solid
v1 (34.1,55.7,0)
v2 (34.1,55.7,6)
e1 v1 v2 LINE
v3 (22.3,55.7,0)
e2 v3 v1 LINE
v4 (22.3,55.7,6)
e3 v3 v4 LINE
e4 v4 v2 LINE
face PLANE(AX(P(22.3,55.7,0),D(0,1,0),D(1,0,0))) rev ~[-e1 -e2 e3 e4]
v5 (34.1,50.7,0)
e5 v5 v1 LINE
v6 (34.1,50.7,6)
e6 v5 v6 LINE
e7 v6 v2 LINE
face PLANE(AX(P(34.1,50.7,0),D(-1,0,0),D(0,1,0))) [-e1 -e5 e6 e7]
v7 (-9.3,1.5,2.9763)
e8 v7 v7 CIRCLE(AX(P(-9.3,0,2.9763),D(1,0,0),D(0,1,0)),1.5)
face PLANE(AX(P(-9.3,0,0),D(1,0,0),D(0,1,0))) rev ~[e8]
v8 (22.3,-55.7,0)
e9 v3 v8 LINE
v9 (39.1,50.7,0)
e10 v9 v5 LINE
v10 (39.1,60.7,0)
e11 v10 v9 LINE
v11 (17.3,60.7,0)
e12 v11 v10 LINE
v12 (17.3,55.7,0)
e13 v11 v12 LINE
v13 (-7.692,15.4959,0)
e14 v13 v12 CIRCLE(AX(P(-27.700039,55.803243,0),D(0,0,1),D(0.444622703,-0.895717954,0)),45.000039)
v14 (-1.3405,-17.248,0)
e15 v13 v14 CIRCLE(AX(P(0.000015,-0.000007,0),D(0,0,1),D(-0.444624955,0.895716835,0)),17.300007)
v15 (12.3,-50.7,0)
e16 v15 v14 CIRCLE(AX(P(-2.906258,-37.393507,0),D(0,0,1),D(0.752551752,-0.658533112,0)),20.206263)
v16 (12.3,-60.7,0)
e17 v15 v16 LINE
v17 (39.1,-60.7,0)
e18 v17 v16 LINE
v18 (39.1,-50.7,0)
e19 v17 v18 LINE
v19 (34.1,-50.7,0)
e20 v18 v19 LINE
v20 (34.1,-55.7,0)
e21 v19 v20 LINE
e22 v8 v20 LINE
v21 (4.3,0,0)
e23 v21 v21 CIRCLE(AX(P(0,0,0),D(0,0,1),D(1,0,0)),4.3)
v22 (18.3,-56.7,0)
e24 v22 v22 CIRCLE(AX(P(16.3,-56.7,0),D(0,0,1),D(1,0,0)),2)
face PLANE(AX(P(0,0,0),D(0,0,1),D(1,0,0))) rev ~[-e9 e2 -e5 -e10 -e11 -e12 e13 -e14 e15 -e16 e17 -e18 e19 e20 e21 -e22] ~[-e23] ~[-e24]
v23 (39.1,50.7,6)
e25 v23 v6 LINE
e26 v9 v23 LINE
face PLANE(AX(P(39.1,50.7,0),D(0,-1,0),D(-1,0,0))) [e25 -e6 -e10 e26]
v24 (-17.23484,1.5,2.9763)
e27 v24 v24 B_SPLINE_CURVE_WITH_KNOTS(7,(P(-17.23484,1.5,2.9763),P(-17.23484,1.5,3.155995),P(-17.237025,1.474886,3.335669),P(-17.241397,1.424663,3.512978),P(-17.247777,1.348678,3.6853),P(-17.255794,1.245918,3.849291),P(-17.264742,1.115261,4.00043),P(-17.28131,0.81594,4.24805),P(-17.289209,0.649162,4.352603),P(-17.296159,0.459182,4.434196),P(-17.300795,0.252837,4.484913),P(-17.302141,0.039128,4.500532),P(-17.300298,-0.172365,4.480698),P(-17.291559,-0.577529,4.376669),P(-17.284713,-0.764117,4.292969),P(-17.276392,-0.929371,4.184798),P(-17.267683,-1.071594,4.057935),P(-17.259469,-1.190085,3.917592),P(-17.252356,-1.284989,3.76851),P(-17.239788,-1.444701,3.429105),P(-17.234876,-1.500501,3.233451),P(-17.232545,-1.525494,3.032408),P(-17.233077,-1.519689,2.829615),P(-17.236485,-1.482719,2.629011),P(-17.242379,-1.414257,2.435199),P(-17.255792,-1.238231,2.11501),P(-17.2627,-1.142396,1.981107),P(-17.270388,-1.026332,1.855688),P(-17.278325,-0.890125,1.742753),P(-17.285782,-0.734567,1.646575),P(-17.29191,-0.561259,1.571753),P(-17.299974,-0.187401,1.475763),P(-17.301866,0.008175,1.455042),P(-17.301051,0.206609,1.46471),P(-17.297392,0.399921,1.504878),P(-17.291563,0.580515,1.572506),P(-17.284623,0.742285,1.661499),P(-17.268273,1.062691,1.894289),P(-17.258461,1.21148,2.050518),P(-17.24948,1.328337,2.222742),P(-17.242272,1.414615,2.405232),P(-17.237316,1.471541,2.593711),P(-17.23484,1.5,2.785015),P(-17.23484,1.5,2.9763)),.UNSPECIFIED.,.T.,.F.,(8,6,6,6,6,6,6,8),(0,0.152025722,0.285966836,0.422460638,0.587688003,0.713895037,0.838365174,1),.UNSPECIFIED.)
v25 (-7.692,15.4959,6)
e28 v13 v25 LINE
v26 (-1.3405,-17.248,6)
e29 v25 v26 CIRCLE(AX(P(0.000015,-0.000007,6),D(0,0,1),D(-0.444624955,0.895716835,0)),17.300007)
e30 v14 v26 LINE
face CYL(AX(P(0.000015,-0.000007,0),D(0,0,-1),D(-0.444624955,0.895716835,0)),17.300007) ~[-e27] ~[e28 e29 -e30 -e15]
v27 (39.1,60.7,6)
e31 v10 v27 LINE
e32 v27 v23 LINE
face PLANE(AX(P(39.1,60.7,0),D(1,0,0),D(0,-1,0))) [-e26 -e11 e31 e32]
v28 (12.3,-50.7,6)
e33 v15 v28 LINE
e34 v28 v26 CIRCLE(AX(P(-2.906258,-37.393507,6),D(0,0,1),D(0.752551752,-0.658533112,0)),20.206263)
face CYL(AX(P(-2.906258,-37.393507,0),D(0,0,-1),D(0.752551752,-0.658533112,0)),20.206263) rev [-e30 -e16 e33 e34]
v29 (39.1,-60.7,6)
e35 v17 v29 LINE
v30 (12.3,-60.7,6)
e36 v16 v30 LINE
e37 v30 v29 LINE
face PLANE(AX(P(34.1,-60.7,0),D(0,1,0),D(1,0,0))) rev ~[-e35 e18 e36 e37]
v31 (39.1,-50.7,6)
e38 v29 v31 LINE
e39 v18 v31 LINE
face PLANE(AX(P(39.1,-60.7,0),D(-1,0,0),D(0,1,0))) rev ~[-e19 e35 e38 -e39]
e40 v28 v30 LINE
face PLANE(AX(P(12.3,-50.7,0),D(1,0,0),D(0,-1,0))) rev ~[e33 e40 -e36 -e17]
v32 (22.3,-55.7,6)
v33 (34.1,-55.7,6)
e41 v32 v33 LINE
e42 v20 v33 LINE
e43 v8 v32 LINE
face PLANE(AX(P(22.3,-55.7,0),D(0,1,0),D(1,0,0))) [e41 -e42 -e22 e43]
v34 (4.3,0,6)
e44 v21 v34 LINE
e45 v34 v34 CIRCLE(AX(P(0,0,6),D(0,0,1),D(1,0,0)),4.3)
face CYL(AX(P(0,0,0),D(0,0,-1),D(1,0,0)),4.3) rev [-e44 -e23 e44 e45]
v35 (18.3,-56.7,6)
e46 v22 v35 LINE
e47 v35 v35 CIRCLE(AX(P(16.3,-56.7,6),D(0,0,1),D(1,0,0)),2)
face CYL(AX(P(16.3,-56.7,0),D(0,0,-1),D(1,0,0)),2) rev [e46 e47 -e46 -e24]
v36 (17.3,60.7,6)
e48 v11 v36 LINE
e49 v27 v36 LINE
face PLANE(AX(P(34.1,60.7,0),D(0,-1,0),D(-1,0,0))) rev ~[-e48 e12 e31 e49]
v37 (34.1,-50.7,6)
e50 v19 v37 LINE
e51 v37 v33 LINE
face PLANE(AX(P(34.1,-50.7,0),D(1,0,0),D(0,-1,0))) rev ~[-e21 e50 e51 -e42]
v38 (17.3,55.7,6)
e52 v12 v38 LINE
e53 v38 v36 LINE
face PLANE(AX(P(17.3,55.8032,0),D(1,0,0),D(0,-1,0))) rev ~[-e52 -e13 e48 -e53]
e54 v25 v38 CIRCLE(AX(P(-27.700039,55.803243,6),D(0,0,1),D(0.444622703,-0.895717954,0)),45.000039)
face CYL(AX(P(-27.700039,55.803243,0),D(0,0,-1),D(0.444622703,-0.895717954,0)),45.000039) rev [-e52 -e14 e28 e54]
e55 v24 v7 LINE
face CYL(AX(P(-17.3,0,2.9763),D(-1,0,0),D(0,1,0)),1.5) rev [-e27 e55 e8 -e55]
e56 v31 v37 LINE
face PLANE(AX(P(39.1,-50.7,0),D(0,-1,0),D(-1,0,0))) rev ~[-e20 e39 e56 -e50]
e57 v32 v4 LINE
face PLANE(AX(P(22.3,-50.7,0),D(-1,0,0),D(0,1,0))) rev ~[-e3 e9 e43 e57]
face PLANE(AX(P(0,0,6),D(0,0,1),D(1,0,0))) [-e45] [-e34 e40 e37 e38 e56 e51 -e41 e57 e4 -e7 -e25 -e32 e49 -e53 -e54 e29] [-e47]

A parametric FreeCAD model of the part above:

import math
import FreeCAD as App
import Part
import Sketcher

V = App.Vector
Q = App.Units.Quantity

doc = App.newDocument("Part")
body = doc.addObject("PartDesign::Body", "Body")

# Sketch on XY plane
sketch1 = body.newObject("Sketcher::SketchObject", "Sketch")
sketch1.AttachmentSupport = (doc.getObject("XY_Plane"), [""])
sketch1.MapMode = "FlatFace"
sketch1.addGeometry([
    Part.ArcOfCircle(Part.Circle(V(-27.7, 55.8032, 0), V(0, 0, 1), 44.999983), math.radians(-63.600818), math.radians(-0.131398)),  # 0
    Part.ArcOfCircle(Part.Circle(V(0, 0, 0), V(0, 0, 1), 17.299994), math.radians(116.399313), math.radians(265.555954)),  # 1
    Part.ArcOfCircle(Part.Circle(V(-2.9063, -37.3935, 0), V(0, 0, 1), 20.206299), math.radians(-41.188032), math.radians(85.555646)),  # 2
    Part.LineSegment(V(12.3, -50.7, 0), V(12.3, -60.7, 0)),  # 3
    Part.LineSegment(V(12.3, -60.7, 0), V(39.1, -60.7, 0)),  # 4
    Part.LineSegment(V(39.1, -60.7, 0), V(39.1, -50.7, 0)),  # 5
    Part.LineSegment(V(39.1, -50.7, 0), V(34.1, -50.7, 0)),  # 6
    Part.LineSegment(V(34.1, -50.7, 0), V(34.1, -55.7, 0)),  # 7
    Part.LineSegment(V(34.1, -55.7, 0), V(22.3, -55.7, 0)),  # 8
    Part.LineSegment(V(22.3, -55.7, 0), V(22.3, 55.7, 0)),  # 9
    Part.LineSegment(V(22.3, 55.7, 0), V(34.1, 55.7, 0)),  # 10
    Part.LineSegment(V(34.1, 55.7, 0), V(34.1, 50.7, 0)),  # 11
    Part.LineSegment(V(34.1, 50.7, 0), V(39.1, 50.7, 0)),  # 12
    Part.LineSegment(V(39.1, 50.7, 0), V(39.1, 60.7, 0)),  # 13
    Part.LineSegment(V(39.1, 60.7, 0), V(17.3, 60.7, 0)),  # 14
    Part.LineSegment(V(17.3, 60.7, 0), V(17.3, 55.7, 0)),  # 15
    Part.Circle(V(16.3, -56.7, 0), V(0, 0, 1), 2),  # 16
    Part.Circle(V(0, 0, 0), V(0, 0, 1), 4.3),  # 17
], False)
sketch1.addConstraint([
    Sketcher.Constraint("Tangent", 0, 1, 1, 1),
    Sketcher.Constraint("Tangent", 1, 2, 2, 2),
    Sketcher.Constraint("Coincident", 2, 1, 3, 1),
    Sketcher.Constraint("Coincident", 3, 2, 4, 1),
    Sketcher.Constraint("Coincident", 4, 2, 5, 1),
    Sketcher.Constraint("Coincident", 5, 2, 6, 1),
    Sketcher.Constraint("Coincident", 6, 2, 7, 1),
    Sketcher.Constraint("Coincident", 7, 2, 8, 1),
    Sketcher.Constraint("Coincident", 8, 2, 9, 1),
    Sketcher.Constraint("Coincident", 9, 2, 10, 1),
    Sketcher.Constraint("Coincident", 10, 2, 11, 1),
    Sketcher.Constraint("Coincident", 11, 2, 12, 1),
    Sketcher.Constraint("Coincident", 12, 2, 13, 1),
    Sketcher.Constraint("Coincident", 13, 2, 14, 1),
    Sketcher.Constraint("Coincident", 14, 2, 15, 1),
    Sketcher.Constraint("Coincident", 15, 2, 0, 2),
    Sketcher.Constraint("Vertical", 3),
    Sketcher.Constraint("Horizontal", 4),
    Sketcher.Constraint("Vertical", 5),
    Sketcher.Constraint("Horizontal", 6),
    Sketcher.Constraint("Vertical", 7),
    Sketcher.Constraint("Horizontal", 8),
    Sketcher.Constraint("Vertical", 9),
    Sketcher.Constraint("Horizontal", 10),
    Sketcher.Constraint("Vertical", 11),
    Sketcher.Constraint("Horizontal", 12),
    Sketcher.Constraint("Vertical", 13),
    Sketcher.Constraint("Horizontal", 14),
    Sketcher.Constraint("Vertical", 15),
    Sketcher.Constraint("Coincident", 1, 3, -1, 1),
    Sketcher.Constraint("Coincident", 17, 3, -1, 1),
    Sketcher.Constraint("Symmetric", 7, 2, 10, 2, -1),
    Sketcher.Constraint("Symmetric", 5, 2, 12, 2, -1),
    Sketcher.Constraint("Horizontal", 2, 1, 5, 2),
    Sketcher.Constraint("Horizontal", 10, 2, 15, 2),
    Sketcher.Constraint("Equal", 12, 7),
    Sketcher.Constraint("Equal", 5, 13),
    Sketcher.Constraint("Equal", 11, 15),
    Sketcher.Constraint("Diameter", 16, Q("4 mm")),
    Sketcher.Constraint("Radius", 0, Q("45 mm")),
    Sketcher.Constraint("Diameter", 17, Q("8.6 mm")),
    Sketcher.Constraint("Radius", 1, Q("17.3 mm")),
    Sketcher.Constraint("DistanceX", 6, 2, 6, 1, Q("5 mm")),
    Sketcher.Constraint("DistanceX", 4, 1, 4, 2, Q("26.8 mm")),
    Sketcher.Constraint("DistanceX", 8, 2, 8, 1, Q("11.8 mm")),
    Sketcher.Constraint("DistanceX", 14, 2, 14, 1, Q("21.8 mm")),
    Sketcher.Constraint("DistanceY", 9, 1, 9, 2, Q("111.4 mm")),
    Sketcher.Constraint("DistanceX", 0, 3, 16, 3, Q("44 mm")),
    Sketcher.Constraint("DistanceY", 16, 3, 2, 1, Q("6 mm")),
    Sketcher.Constraint("DistanceX", 0, 3, -1, 1, Q("27.7 mm")),
    Sketcher.Constraint("Radius", 2, Q("20.2063 mm")),
])
pad1 = body.newObject("PartDesign::Pad", "Pad")
pad1.Profile = sketch1
pad1.Length = 6

# Sketch on YZ plane
sketch2 = body.newObject("Sketcher::SketchObject", "Sketch001")
sketch2.AttachmentSupport = (doc.getObject("YZ_Plane"), [""])
sketch2.MapMode = "FlatFace"
sketch2.AttachmentOffset = App.Placement(V(0, 0, -17.3), App.Rotation())
sketch2.addGeometry(Part.Circle(V(0, 2.9763, 0), V(0, 0, 1), 1.5), False)
sketch2.addConstraint([
    Sketcher.Constraint("PointOnObject", 0, 3, -2),
    Sketcher.Constraint("Diameter", 0, Q("3 mm")),
    Sketcher.Constraint("DistanceY", -1, 1, 0, 3, Q("2.9763 mm")),
])
pocket1 = body.newObject("PartDesign::Pocket", "Pocket")
pocket1.Profile = sketch2
pocket1.Length = 8
pocket1.Reversed = True

doc.recompute()
